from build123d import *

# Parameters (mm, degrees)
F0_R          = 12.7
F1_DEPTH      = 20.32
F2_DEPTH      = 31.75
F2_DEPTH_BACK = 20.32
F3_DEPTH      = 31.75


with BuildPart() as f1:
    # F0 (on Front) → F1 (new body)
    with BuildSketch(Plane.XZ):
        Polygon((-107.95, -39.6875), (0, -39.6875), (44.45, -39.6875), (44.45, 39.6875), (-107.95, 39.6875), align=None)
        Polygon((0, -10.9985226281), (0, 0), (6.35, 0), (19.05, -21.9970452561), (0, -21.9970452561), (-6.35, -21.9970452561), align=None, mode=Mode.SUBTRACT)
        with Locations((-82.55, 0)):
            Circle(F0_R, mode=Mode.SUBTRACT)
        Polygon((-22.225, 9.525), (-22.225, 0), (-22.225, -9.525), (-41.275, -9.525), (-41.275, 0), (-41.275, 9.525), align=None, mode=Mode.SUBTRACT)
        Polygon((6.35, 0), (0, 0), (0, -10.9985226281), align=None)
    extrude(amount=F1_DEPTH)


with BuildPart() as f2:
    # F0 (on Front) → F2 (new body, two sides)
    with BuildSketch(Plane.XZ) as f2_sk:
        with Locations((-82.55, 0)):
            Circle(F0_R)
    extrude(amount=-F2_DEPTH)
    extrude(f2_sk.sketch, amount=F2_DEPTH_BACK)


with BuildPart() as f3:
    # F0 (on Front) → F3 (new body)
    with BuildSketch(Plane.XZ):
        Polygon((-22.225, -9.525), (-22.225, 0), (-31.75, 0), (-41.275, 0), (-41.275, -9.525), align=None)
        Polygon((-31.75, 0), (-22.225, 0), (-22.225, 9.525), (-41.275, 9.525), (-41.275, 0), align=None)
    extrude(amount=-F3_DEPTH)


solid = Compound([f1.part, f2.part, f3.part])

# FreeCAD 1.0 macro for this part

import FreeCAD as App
import Part
import Sketcher
from FreeCAD import Vector
Q = App.Units.Quantity

doc = App.newDocument("Part")
params = doc.addObject("Spreadsheet::Sheet", "Params")
for row, (alias, value) in enumerate([
    ("sketch1_diameter", "1 in"),
    ("sketch1_width", "6 in"),
    ("sketch1_width2", "1 in"),
    ("sketch1_length", "1 in"),
    ("sketch1_width3", "0.75 in"),
    ("pad1_length", "0.8 in"),
    ("sketch2_diameter", "1 in"),
    ("pad2_length", "1.25 in"),
    ("pad2_length2", "0.8 in"),
    ("sketch3_width", "0.75 in"),
    ("pad3_length", "1.25 in"),
], start=1):
    params.set(f"A{row}", alias)
    params.set(f"B{row}", "=" + value)
    params.setAlias(f"B{row}", alias)

body = doc.addObject("PartDesign::Body", "Body")

# Sketch on XZ plane
sketch1 = body.newObject("Sketcher::SketchObject", "Sketch")
sketch1.AttachmentSupport = (doc.getObject("XZ_Plane"), [""])
sketch1.MapMode = "FlatFace"
sketch1.addGeometry([
    Part.LineSegment(Vector(-107.95, -39.6875, 0), Vector(44.45, -39.6875, 0)),  # 0
    Part.LineSegment(Vector(44.45, -39.6875, 0), Vector(44.45, 39.6875, 0)),  # 1
    Part.LineSegment(Vector(44.45, 39.6875, 0), Vector(-107.95, 39.6875, 0)),  # 2
    Part.LineSegment(Vector(-107.95, 39.6875, 0), Vector(-107.95, -39.6875, 0)),  # 3
    Part.LineSegment(Vector(-6.35, -21.997045, 0), Vector(0, -10.998523, 0)),  # 4
    Part.LineSegment(Vector(0, -10.998523, 0), Vector(6.35, 0, 0)),  # 5
    Part.LineSegment(Vector(6.35, 0, 0), Vector(19.05, -21.997045, 0)),  # 6
    Part.LineSegment(Vector(19.05, -21.997045, 0), Vector(-6.35, -21.997045, 0)),  # 7
    Part.Circle(Vector(-82.55, 0, 0), Vector(0, 0, 1), 12.7),  # 8
    Part.LineSegment(Vector(-41.275, 9.525, 0), Vector(-22.225, 9.525, 0)),  # 9
    Part.LineSegment(Vector(-22.225, 9.525, 0), Vector(-22.225, -9.525, 0)),  # 10
    Part.LineSegment(Vector(-22.225, -9.525, 0), Vector(-41.275, -9.525, 0)),  # 11
    Part.LineSegment(Vector(-41.275, -9.525, 0), Vector(-41.275, 9.525, 0)),  # 12
], False)
sketch1.addConstraint([
    Sketcher.Constraint("Coincident", 0, 2, 1, 1),
    Sketcher.Constraint("Coincident", 1, 2, 2, 1),
    Sketcher.Constraint("Coincident", 2, 2, 3, 1),
    Sketcher.Constraint("Coincident", 3, 2, 0, 1),
    Sketcher.Constraint("Coincident", 4, 2, 5, 1),
    Sketcher.Constraint("Coincident", 5, 2, 6, 1),
    Sketcher.Constraint("Coincident", 6, 2, 7, 1),
    Sketcher.Constraint("Coincident", 7, 2, 4, 1),
    Sketcher.Constraint("Coincident", 9, 2, 10, 1),
    Sketcher.Constraint("Coincident", 10, 2, 11, 1),
    Sketcher.Constraint("Coincident", 11, 2, 12, 1),
    Sketcher.Constraint("Coincident", 12, 2, 9, 1),
    Sketcher.Constraint("Horizontal", 0),
    Sketcher.Constraint("Vertical", 1),
    Sketcher.Constraint("Horizontal", 2),
    Sketcher.Constraint("Vertical", 3),
    Sketcher.Constraint("Horizontal", 7),
    Sketcher.Constraint("Horizontal", 9),
    Sketcher.Constraint("Vertical", 10),
    Sketcher.Constraint("Horizontal", 11),
    Sketcher.Constraint("Vertical", 12),
    Sketcher.Constraint("PointOnObject", 8, 3, -1),
    Sketcher.Constraint("PointOnObject", 4, 2, -2),
    Sketcher.Constraint("PointOnObject", 5, 2, -1),
    Sketcher.Constraint("Parallel", 4, 5),
    Sketcher.Constraint("Equal", 11, 10),
    Sketcher.Constraint("Equal", 4, 5),
    Sketcher.Constraint("Diameter", 8, Q("1 in")),
    Sketcher.Constraint("DistanceX", 0, 1, 0, 2, Q("6 in")),
    Sketcher.Constraint("DistanceX", 7, 2, 7, 1, Q("1 in")),
    Sketcher.Constraint("Distance", 6, Q("1 in")),
    Sketcher.Constraint("Angle", 4, Q("60 deg")),
    Sketcher.Constraint("DistanceX", 8, 3, 0, 2, Q("5 in")),
    Sketcher.Constraint("DistanceX", 6, 2, 0, 2, Q("1 in")),
    Sketcher.Constraint("DistanceX", 9, 1, 9, 2, Q("0.75 in")),
    Sketcher.Constraint("DistanceY", 1, 1, 1, 2, Q("3.125 in")),
    Sketcher.Constraint("DistanceY", 0, 2, -1, 1, Q("1.5625 in")),
    Sketcher.Constraint("DistanceX", 9, 2, -1, 1, Q("0.875 in")),
    Sketcher.Constraint("DistanceY", -1, 1, 9, 2, Q("0.375 in")),
])
sketch1.setExpression("Constraints[27]", "Params.sketch1_diameter")
sketch1.setExpression("Constraints[28]", "Params.sketch1_width")
sketch1.setExpression("Constraints[29]", "Params.sketch1_width2")
sketch1.setExpression("Constraints[30]", "Params.sketch1_length")
sketch1.setExpression("Constraints[34]", "Params.sketch1_width3")
pad1 = body.newObject("PartDesign::Pad", "Pad")
pad1.Profile = sketch1
pad1.setExpression("Length", "Params.pad1_length")
body2 = doc.addObject("PartDesign::Body", "Body001")

# Sketch on XZ plane
sketch2 = body2.newObject("Sketcher::SketchObject", "Sketch001")
sketch2.AttachmentSupport = (doc.getObject("XZ_Plane001"), [""])
sketch2.MapMode = "FlatFace"
sketch2.addGeometry(Part.Circle(Vector(-82.55, 0, 0), Vector(0, 0, 1), 12.7), False)
sketch2.addConstraint([
    Sketcher.Constraint("PointOnObject", 0, 3, -1),
    Sketcher.Constraint("Diameter", 0, Q("1 in")),
    Sketcher.Constraint("DistanceX", 0, 3, -1, 1, Q("3.25 in")),
])
sketch2.setExpression("Constraints[1]", "Params.sketch2_diameter")
pad2 = body2.newObject("PartDesign::Pad", "Pad001")
pad2.Profile = sketch2
pad2.Type = "TwoLengths"
pad2.setExpression("Length", "Params.pad2_length")
pad2.setExpression("Length2", "Params.pad2_length2")
pad2.Reversed = True
body3 = doc.addObject("PartDesign::Body", "Body002")

# Sketch on XZ plane
sketch3 = body3.newObject("Sketcher::SketchObject", "Sketch002")
sketch3.AttachmentSupport = (doc.getObject("XZ_Plane002"), [""])
sketch3.MapMode = "FlatFace"
sketch3.addGeometry([
    Part.LineSegment(Vector(-22.225, -9.525, 0), Vector(-22.225, 9.525, 0)),
    Part.LineSegment(Vector(-22.225, 9.525, 0), Vector(-41.275, 9.525, 0)),
    Part.LineSegment(Vector(-41.275, 9.525, 0), Vector(-41.275, -9.525, 0)),
    Part.LineSegment(Vector(-41.275, -9.525, 0), Vector(-22.225, -9.525, 0)),
], False)
sketch3.addConstraint([
    Sketcher.Constraint("Coincident", 0, 2, 1, 1),
    Sketcher.Constraint("Coincident", 1, 2, 2, 1),
    Sketcher.Constraint("Coincident", 2, 2, 3, 1),
    Sketcher.Constraint("Coincident", 3, 2, 0, 1),
    Sketcher.Constraint("Vertical", 0),
    Sketcher.Constraint("Horizontal", 1),
    Sketcher.Constraint("Vertical", 2),
    Sketcher.Constraint("Horizontal", 3),
    Sketcher.Constraint("Equal", 3, 0),
    Sketcher.Constraint("DistanceX", 1, 2, 1, 1, Q("0.75 in")),
    Sketcher.Constraint("DistanceX", 0, 2, -1, 1, Q("0.875 in")),
    Sketcher.Constraint("DistanceY", -1, 1, 0, 2, Q("0.375 in")),
])
sketch3.setExpression("Constraints[9]", "Params.sketch3_width")
pad3 = body3.newObject("PartDesign::Pad", "Pad002")
pad3.Profile = sketch3
pad3.setExpression("Length", "Params.pad3_length")
pad3.Reversed = True

doc.recompute()
